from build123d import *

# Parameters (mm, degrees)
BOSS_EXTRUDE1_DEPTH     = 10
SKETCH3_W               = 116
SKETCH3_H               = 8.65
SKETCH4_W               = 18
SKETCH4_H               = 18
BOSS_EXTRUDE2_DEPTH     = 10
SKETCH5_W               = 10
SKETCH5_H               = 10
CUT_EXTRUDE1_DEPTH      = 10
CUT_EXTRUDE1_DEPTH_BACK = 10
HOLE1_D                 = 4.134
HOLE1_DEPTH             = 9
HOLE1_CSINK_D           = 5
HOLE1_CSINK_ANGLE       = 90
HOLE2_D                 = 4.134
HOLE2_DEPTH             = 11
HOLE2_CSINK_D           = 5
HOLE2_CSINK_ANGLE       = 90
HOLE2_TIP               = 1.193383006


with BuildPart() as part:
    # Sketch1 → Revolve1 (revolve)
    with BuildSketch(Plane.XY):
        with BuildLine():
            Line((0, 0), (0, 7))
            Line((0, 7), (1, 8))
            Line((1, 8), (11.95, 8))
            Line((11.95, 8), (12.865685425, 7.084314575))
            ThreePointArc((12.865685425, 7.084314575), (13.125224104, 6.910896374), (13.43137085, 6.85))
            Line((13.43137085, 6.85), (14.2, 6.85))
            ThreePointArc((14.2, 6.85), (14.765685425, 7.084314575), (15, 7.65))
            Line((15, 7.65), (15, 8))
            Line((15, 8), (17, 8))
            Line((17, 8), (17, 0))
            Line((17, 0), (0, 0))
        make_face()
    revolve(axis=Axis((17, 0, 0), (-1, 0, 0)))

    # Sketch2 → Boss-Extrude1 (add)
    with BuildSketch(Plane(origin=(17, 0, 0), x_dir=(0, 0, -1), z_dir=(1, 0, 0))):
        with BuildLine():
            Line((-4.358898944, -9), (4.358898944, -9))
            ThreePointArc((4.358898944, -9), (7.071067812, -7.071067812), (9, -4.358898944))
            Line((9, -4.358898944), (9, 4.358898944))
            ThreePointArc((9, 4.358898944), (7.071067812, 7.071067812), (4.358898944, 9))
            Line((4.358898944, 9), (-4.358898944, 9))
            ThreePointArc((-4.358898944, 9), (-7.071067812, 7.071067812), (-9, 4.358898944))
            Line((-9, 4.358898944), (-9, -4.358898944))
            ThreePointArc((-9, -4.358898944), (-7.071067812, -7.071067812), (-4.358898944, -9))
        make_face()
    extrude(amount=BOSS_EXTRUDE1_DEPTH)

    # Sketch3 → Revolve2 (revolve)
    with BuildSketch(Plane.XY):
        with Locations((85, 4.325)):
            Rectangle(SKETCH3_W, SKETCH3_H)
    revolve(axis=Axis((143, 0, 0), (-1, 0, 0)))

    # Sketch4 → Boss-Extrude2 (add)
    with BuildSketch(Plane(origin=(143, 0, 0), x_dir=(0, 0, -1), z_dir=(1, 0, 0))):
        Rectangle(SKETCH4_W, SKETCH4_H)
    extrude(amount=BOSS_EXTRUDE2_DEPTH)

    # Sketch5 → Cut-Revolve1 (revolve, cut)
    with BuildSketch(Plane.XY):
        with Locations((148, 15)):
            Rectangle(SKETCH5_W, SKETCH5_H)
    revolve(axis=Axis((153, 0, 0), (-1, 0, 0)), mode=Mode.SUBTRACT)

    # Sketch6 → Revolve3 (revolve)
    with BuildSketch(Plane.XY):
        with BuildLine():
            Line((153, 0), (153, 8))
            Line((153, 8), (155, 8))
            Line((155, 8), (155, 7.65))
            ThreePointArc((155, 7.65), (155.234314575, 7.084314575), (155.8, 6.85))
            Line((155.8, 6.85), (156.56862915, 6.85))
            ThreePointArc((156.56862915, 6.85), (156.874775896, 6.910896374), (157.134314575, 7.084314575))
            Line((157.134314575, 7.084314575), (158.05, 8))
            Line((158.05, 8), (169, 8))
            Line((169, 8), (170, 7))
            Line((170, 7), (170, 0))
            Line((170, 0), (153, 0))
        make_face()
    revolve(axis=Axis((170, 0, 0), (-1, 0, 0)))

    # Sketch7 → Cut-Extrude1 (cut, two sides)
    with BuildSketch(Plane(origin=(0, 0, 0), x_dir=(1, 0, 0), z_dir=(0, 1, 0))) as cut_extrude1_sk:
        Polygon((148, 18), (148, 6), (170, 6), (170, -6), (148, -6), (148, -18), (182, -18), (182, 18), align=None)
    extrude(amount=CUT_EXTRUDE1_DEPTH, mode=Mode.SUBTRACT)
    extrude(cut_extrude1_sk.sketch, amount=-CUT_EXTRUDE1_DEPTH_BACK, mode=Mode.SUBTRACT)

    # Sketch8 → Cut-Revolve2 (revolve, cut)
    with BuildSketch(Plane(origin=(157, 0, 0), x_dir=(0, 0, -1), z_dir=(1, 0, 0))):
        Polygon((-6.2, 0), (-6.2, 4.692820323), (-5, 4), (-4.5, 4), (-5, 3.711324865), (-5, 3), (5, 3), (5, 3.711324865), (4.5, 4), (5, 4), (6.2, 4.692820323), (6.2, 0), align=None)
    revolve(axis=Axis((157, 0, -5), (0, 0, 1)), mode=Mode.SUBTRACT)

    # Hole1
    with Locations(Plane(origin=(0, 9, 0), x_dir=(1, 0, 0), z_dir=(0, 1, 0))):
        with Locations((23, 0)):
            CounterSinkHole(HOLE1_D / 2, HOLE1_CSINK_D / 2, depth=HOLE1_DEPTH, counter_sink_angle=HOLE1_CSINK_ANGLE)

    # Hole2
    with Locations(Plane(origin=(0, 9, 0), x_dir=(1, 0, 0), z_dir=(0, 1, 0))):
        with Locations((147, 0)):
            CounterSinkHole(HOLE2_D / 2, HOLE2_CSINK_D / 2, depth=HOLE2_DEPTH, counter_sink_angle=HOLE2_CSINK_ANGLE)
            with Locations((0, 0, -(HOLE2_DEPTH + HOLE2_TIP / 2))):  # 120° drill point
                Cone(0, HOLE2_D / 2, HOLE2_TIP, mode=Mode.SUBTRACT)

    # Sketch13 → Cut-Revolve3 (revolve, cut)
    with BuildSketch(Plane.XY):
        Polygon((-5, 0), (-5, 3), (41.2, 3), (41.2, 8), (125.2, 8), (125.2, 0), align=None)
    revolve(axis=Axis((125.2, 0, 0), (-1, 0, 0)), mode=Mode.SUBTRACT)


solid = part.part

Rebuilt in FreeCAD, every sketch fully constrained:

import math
import FreeCAD as App
import Part
import Sketcher
from FreeCAD import Vector
Q = App.Units.Quantity

doc = App.newDocument("Part")
body = doc.addObject("PartDesign::Body", "Body")

# Sketch on XY plane
sketch1 = body.newObject("Sketcher::SketchObject", "Sketch")
sketch1.AttachmentSupport = (doc.getObject("XY_Plane"), [""])
sketch1.MapMode = "FlatFace"
sketch1.addGeometry([
    Part.LineSegment(Vector(0, 7, 0), Vector(0, 0, 0)),  # 0
    Part.LineSegment(Vector(0, 0, 0), Vector(17, 0, 0)),  # 1
    Part.LineSegment(Vector(17, 0, 0), Vector(17, 8, 0)),  # 2
    Part.LineSegment(Vector(17, 8, 0), Vector(15, 8, 0)),  # 3
    Part.LineSegment(Vector(15, 8, 0), Vector(15, 7.65, 0)),  # 4
    Part.ArcOfCircle(Part.Circle(Vector(14.2, 7.65, 0), Vector(0, 0, 1), 0.8), math.radians(-90), math.radians(0)),  # 5
    Part.LineSegment(Vector(14.2, 6.85, 0), Vector(13.43, 6.85, 0)),  # 6
    Part.ArcOfCircle(Part.Circle(Vector(13.43, 7.65, 0), Vector(0, 0, 1), 0.8), math.radians(-135), math.radians(-90)),  # 7
    Part.LineSegment(Vector(12.87, 7.08, 0), Vector(11.95, 8, 0)),  # 8
    Part.LineSegment(Vector(11.95, 8, 0), Vector(1, 8, 0)),  # 9
    Part.LineSegment(Vector(1, 8, 0), Vector(0, 7, 0)),  # 10
], False)
sketch1.addConstraint([
    Sketcher.Constraint("Coincident", 0, 2, 1, 1),
    Sketcher.Constraint("Coincident", 1, 2, 2, 1),
    Sketcher.Constraint("Coincident", 2, 2, 3, 1),
    Sketcher.Constraint("Coincident", 3, 2, 4, 1),
    Sketcher.Constraint("Tangent", 4, 2, 5, 2),
    Sketcher.Constraint("Tangent", 5, 1, 6, 1),
    Sketcher.Constraint("Tangent", 6, 2, 7, 2),
    Sketcher.Constraint("Tangent", 7, 1, 8, 1),
    Sketcher.Constraint("Coincident", 8, 2, 9, 1),
    Sketcher.Constraint("Coincident", 9, 2, 10, 1),
    Sketcher.Constraint("Coincident", 10, 2, 0, 1),
    Sketcher.Constraint("Vertical", 0),
    Sketcher.Constraint("Horizontal", 1),
    Sketcher.Constraint("Vertical", 2),
    Sketcher.Constraint("Horizontal", 3),
    Sketcher.Constraint("Vertical", 4),
    Sketcher.Constraint("Horizontal", 6),
    Sketcher.Constraint("Horizontal", 9),
    Sketcher.Constraint("Coincident", 0, 2, -1, 1),
    Sketcher.Constraint("Equal", 5, 7),
    Sketcher.Constraint("Perpendicular", 8, 10),
    Sketcher.Constraint("Horizontal", 3, 2, 8, 2),
    Sketcher.Constraint("Radius", 5, 0.8),
    Sketcher.Constraint("DistanceX", 1, 1, 1, 2, 17.0),
    Sketcher.Constraint("DistanceX", 3, 2, 3, 1, 2.0),
    Sketcher.Constraint("DistanceY", 0, 2, 0, 1, 7.0),
    Sketcher.Constraint("DistanceY", 2, 1, 2, 2, 8.0),
    Sketcher.Constraint("Angle", 8, Q("135 deg")),
    Sketcher.Constraint("DistanceX", 9, 2, 9, 1, 10.95),
    Sketcher.Constraint("DistanceY", 4, 2, 4, 1, 0.35),
])
revolution = body.newObject("PartDesign::Revolution", "Revolution")
revolution.Profile = sketch1
revolution.ReferenceAxis = (sketch1, ["H_Axis"])
revolution.Angle = 360

# Sketch on YZ plane
sketch2 = body.newObject("Sketcher::SketchObject", "Sketch001")
sketch2.AttachmentSupport = (doc.getObject("YZ_Plane"), [""])
sketch2.MapMode = "FlatFace"
sketch2.AttachmentOffset = App.Placement(Vector(0, 0, 17), App.Rotation())
sketch2.addGeometry([
    Part.LineSegment(Vector(-9, 4, 0), Vector(-9, -4, 0)),  # 0
    Part.ArcOfCircle(Part.Circle(Vector(0, 0, 0), Vector(0, 0, 1), 10), math.radians(-154), math.radians(-116)),  # 1
    Part.LineSegment(Vector(-4, -9, 0), Vector(4, -9, 0)),  # 2
    Part.ArcOfCircle(Part.Circle(Vector(0, 0, 0), Vector(0, 0, 1), 10), math.radians(-64), math.radians(-26)),  # 3
    Part.LineSegment(Vector(9, -4, 0), Vector(9, 4, 0)),  # 4
    Part.ArcOfCircle(Part.Circle(Vector(0, 0, 0), Vector(0, 0, 1), 10), math.radians(26), math.radians(64)),  # 5
    Part.LineSegment(Vector(4, 9, 0), Vector(-4, 9, 0)),  # 6
    Part.ArcOfCircle(Part.Circle(Vector(0, 0, 0), Vector(0, 0, 1), 10), math.radians(116), math.radians(154)),  # 7
], False)
sketch2.addConstraint([
    Sketcher.Constraint("Coincident", 0, 2, 1, 1),
    Sketcher.Constraint("Coincident", 1, 2, 2, 1),
    Sketcher.Constraint("Coincident", 2, 2, 3, 1),
    Sketcher.Constraint("Coincident", 3, 2, 4, 1),
    Sketcher.Constraint("Coincident", 4, 2, 5, 1),
    Sketcher.Constraint("Coincident", 5, 2, 6, 1),
    Sketcher.Constraint("Coincident", 6, 2, 7, 1),
    Sketcher.Constraint("Coincident", 7, 2, 0, 1),
    Sketcher.Constraint("Vertical", 0),
    Sketcher.Constraint("Horizontal", 2),
    Sketcher.Constraint("Vertical", 4),
    Sketcher.Constraint("Horizontal", 6),
    Sketcher.Constraint("Coincident", 1, 3, -1, 1),
    Sketcher.Constraint("Coincident", 3, 3, -1, 1),
    Sketcher.Constraint("Coincident", 5, 3, -1, 1),
    Sketcher.Constraint("Coincident", 7, 3, -1, 1),
    Sketcher.Constraint("Equal", 1, 3),
    Sketcher.Constraint("Equal", 3, 5),
    Sketcher.Constraint("Equal", 5, 7),
    Sketcher.Constraint("Horizontal", 0, 2, 3, 2),
    Sketcher.Constraint("Vertical", 2, 2, 5, 2),
    Sketcher.Constraint("Equal", 6, 0),
    Sketcher.Constraint("Radius", 1, 10.0),
    Sketcher.Constraint("DistanceX", 0, 2, -1, 1, 9.0),
])
pad1 = body.newObject("PartDesign::Pad", "Pad")
pad1.Profile = sketch2
pad1.Length = 10

# Sketch on XY plane
sketch3 = body.newObject("Sketcher::SketchObject", "Sketch002")
sketch3.AttachmentSupport = (doc.getObject("XY_Plane"), [""])
sketch3.MapMode = "FlatFace"
sketch3.addGeometry([
    Part.LineSegment(Vector(27, 9, 0), Vector(27, 0, 0)),
    Part.LineSegment(Vector(27, 0, 0), Vector(143, 0, 0)),
    Part.LineSegment(Vector(143, 0, 0), Vector(143, 9, 0)),
    Part.LineSegment(Vector(143, 9, 0), Vector(27, 9, 0)),
], False)
sketch3.addConstraint([
    Sketcher.Constraint("Coincident", 0, 2, 1, 1),
    Sketcher.Constraint("Coincident", 1, 2, 2, 1),
    Sketcher.Constraint("Coincident", 2, 2, 3, 1),
    Sketcher.Constraint("Coincident", 3, 2, 0, 1),
    Sketcher.Constraint("Vertical", 0),
    Sketcher.Constraint("Horizontal", 1),
    Sketcher.Constraint("Vertical", 2),
    Sketcher.Constraint("Horizontal", 3),
    Sketcher.Constraint("PointOnObject", 0, 2, -1),
    Sketcher.Constraint("DistanceX", 1, 1, 1, 2, 116.0),
    Sketcher.Constraint("DistanceX", -1, 1, 0, 2, 27.0),
    Sketcher.Constraint("DistanceY", 0, 2, 0, 1, 8.65),
])
revolution2 = body.newObject("PartDesign::Revolution", "Revolution001")
revolution2.Profile = sketch3
revolution2.ReferenceAxis = (sketch3, ["H_Axis"])
revolution2.Angle = 360

# Sketch on YZ plane
sketch4 = body.newObject("Sketcher::SketchObject", "Sketch003")
sketch4.AttachmentSupport = (doc.getObject("YZ_Plane"), [""])
sketch4.MapMode = "FlatFace"
sketch4.AttachmentOffset = App.Placement(Vector(0, 0, 143), App.Rotation())
sketch4.addGeometry([
    Part.LineSegment(Vector(9, 9, 0), Vector(-9, 9, 0)),
    Part.LineSegment(Vector(-9, 9, 0), Vector(-9, -9, 0)),
    Part.LineSegment(Vector(-9, -9, 0), Vector(9, -9, 0)),
    Part.LineSegment(Vector(9, -9, 0), Vector(9, 9, 0)),
], False)
sketch4.addConstraint([
    Sketcher.Constraint("Coincident", 0, 2, 1, 1),
    Sketcher.Constraint("Coincident", 1, 2, 2, 1),
    Sketcher.Constraint("Coincident", 2, 2, 3, 1),
    Sketcher.Constraint("Coincident", 3, 2, 0, 1),
    Sketcher.Constraint("Horizontal", 0),
    Sketcher.Constraint("Vertical", 1),
    Sketcher.Constraint("Horizontal", 2),
    Sketcher.Constraint("Vertical", 3),
    Sketcher.Constraint("Symmetric", 0, 2, 2, 2, -1, 1),
    Sketcher.Constraint("Equal", 2, 1),
    Sketcher.Constraint("DistanceX", 0, 2, 0, 1, 18.0),
])
pad2 = body.newObject("PartDesign::Pad", "Pad001")
pad2.Profile = sketch4
pad2.Length = 10

# Sketch on XY plane
sketch5 = body.newObject("Sketcher::SketchObject", "Sketch004")
sketch5.AttachmentSupport = (doc.getObject("XY_Plane"), [""])
sketch5.MapMode = "FlatFace"
sketch5.addGeometry([
    Part.LineSegment(Vector(143, 20, 0), Vector(143, 10, 0)),
    Part.LineSegment(Vector(143, 10, 0), Vector(153, 10, 0)),
    Part.LineSegment(Vector(153, 10, 0), Vector(153, 20, 0)),
    Part.LineSegment(Vector(153, 20, 0), Vector(143, 20, 0)),
], False)
sketch5.addConstraint([
    Sketcher.Constraint("Coincident", 0, 2, 1, 1),
    Sketcher.Constraint("Coincident", 1, 2, 2, 1),
    Sketcher.Constraint("Coincident", 2, 2, 3, 1),
    Sketcher.Constraint("Coincident", 3, 2, 0, 1),
    Sketcher.Constraint("Vertical", 0),
    Sketcher.Constraint("Horizontal", 1),
    Sketcher.Constraint("Vertical", 2),
    Sketcher.Constraint("Horizontal", 3),
    Sketcher.Constraint("Equal", 3, 0),
    Sketcher.Constraint("DistanceX", 1, 1, 1, 2, 10.0),
    Sketcher.Constraint("DistanceX", -1, 1, 0, 2, 143.0),
    Sketcher.Constraint("DistanceY", -1, 1, 0, 2, 10.0),
])
groove = body.newObject("PartDesign::Groove", "Groove")
groove.Profile = sketch5
groove.ReferenceAxis = (sketch5, ["H_Axis"])
groove.Angle = 360

# Sketch on XY plane
sketch6 = body.newObject("Sketcher::SketchObject", "Sketch005")
sketch6.AttachmentSupport = (doc.getObject("XY_Plane"), [""])
sketch6.MapMode = "FlatFace"
sketch6.addGeometry([
    Part.LineSegment(Vector(153, 8, 0), Vector(153, 0, 0)),  # 0
    Part.LineSegment(Vector(153, 0, 0), Vector(170, 0, 0)),  # 1
    Part.LineSegment(Vector(170, 0, 0), Vector(170, 7, 0)),  # 2
    Part.LineSegment(Vector(170, 7, 0), Vector(169, 8, 0)),  # 3
    Part.LineSegment(Vector(169, 8, 0), Vector(158.05, 8, 0)),  # 4
    Part.LineSegment(Vector(158.05, 8, 0), Vector(157.13, 7.08, 0)),  # 5
    Part.ArcOfCircle(Part.Circle(Vector(156.57, 7.65, 0), Vector(0, 0, 1), 0.8), math.radians(-90), math.radians(-45)),  # 6
    Part.LineSegment(Vector(156.57, 6.85, 0), Vector(155.8, 6.85, 0)),  # 7
    Part.ArcOfCircle(Part.Circle(Vector(155.8, 7.65, 0), Vector(0, 0, 1), 0.8), math.radians(180), math.radians(270)),  # 8
    Part.LineSegment(Vector(155, 7.65, 0), Vector(155, 8, 0)),  # 9
    Part.LineSegment(Vector(155, 8, 0), Vector(153, 8, 0)),  # 10
], False)
sketch6.addConstraint([
    Sketcher.Constraint("Coincident", 0, 2, 1, 1),
    Sketcher.Constraint("Coincident", 1, 2, 2, 1),
    Sketcher.Constraint("Coincident", 2, 2, 3, 1),
    Sketcher.Constraint("Coincident", 3, 2, 4, 1),
    Sketcher.Constraint("Coincident", 4, 2, 5, 1),
    Sketcher.Constraint("Tangent", 5, 2, 6, 2),
    Sketcher.Constraint("Tangent", 6, 1, 7, 1),
    Sketcher.Constraint("Tangent", 7, 2, 8, 2),
    Sketcher.Constraint("Tangent", 8, 1, 9, 1),
    Sketcher.Constraint("Coincident", 9, 2, 10, 1),
    Sketcher.Constraint("Coincident", 10, 2, 0, 1),
    Sketcher.Constraint("Vertical", 0),
    Sketcher.Constraint("Horizontal", 1),
    Sketcher.Constraint("Vertical", 2),
    Sketcher.Constraint("Horizontal", 4),
    Sketcher.Constraint("Horizontal", 7),
    Sketcher.Constraint("Vertical", 9),
    Sketcher.Constraint("Horizontal", 10),
    Sketcher.Constraint("Equal", 6, 8),
    Sketcher.Constraint("PointOnObject", 0, 2, -1),
    Sketcher.Constraint("Perpendicular", 3, 5),
    Sketcher.Constraint("Horizontal", 4, 2, 9, 2),
    Sketcher.Constraint("Radius", 6, 0.8),
    Sketcher.Constraint("DistanceX", 1, 1, 1, 2, 17.0),
    Sketcher.Constraint("DistanceX", 10, 2, 10, 1, 2.0),
    Sketcher.Constraint("DistanceY", 0, 2, 0, 1, 8.0),
    Sketcher.Constraint("DistanceY", 2, 1, 2, 2, 7.0),
    Sketcher.Constraint("Angle", 3, Q("135 deg")),
    Sketcher.Constraint("DistanceX", -1, 1, 0, 2, 153.0),
    Sketcher.Constraint("DistanceX", 4, 2, 4, 1, 10.95),
    Sketcher.Constraint("DistanceY", 9, 1, 9, 2, 0.35),
])
revolution3 = body.newObject("PartDesign::Revolution", "Revolution002")
revolution3.Profile = sketch6
revolution3.ReferenceAxis = (sketch6, ["H_Axis"])
revolution3.Angle = 360

# Sketch on XZ plane
sketch7 = body.newObject("Sketcher::SketchObject", "Sketch006")
sketch7.AttachmentSupport = (doc.getObject("XZ_Plane"), [""])
sketch7.MapMode = "FlatFace"
sketch7.addGeometry([
    Part.LineSegment(Vector(148, -18, 0), Vector(148, -6, 0)),  # 0
    Part.LineSegment(Vector(148, -6, 0), Vector(170, -6, 0)),  # 1
    Part.LineSegment(Vector(170, -6, 0), Vector(170, 6, 0)),  # 2
    Part.LineSegment(Vector(170, 6, 0), Vector(148, 6, 0)),  # 3
    Part.LineSegment(Vector(148, 6, 0), Vector(148, 18, 0)),  # 4
    Part.LineSegment(Vector(148, 18, 0), Vector(182, 18, 0)),  # 5
    Part.LineSegment(Vector(182, 18, 0), Vector(182, -18, 0)),  # 6
    Part.LineSegment(Vector(182, -18, 0), Vector(148, -18, 0)),  # 7
], False)
sketch7.addConstraint([
    Sketcher.Constraint("Coincident", 0, 2, 1, 1),
    Sketcher.Constraint("Coincident", 1, 2, 2, 1),
    Sketcher.Constraint("Coincident", 2, 2, 3, 1),
    Sketcher.Constraint("Coincident", 3, 2, 4, 1),
    Sketcher.Constraint("Coincident", 4, 2, 5, 1),
    Sketcher.Constraint("Coincident", 5, 2, 6, 1),
    Sketcher.Constraint("Coincident", 6, 2, 7, 1),
    Sketcher.Constraint("Coincident", 7, 2, 0, 1),
    Sketcher.Constraint("Vertical", 0),
    Sketcher.Constraint("Horizontal", 1),
    Sketcher.Constraint("Vertical", 2),
    Sketcher.Constraint("Horizontal", 3),
    Sketcher.Constraint("Vertical", 4),
    Sketcher.Constraint("Horizontal", 5),
    Sketcher.Constraint("Vertical", 6),
    Sketcher.Constraint("Horizontal", 7),
    Sketcher.Constraint("Symmetric", 0, 2, 3, 2, -1),
    Sketcher.Constraint("Equal", 0, 2),
    Sketcher.Constraint("Equal", 2, 4),
    Sketcher.Constraint("DistanceX", 1, 1, 1, 2, 22.0),
    Sketcher.Constraint("DistanceX", 5, 1, 5, 2, 34.0),
    Sketcher.Constraint("DistanceY", 0, 1, 0, 2, 12.0),
    Sketcher.Constraint("DistanceX", -1, 1, 0, 2, 148.0),
])
pocket1 = body.newObject("PartDesign::Pocket", "Pocket")
pocket1.Profile = sketch7
pocket1.Type = "ThroughAll"
pocket1.Midplane = True

# Sketch on YZ plane
sketch8 = body.newObject("Sketcher::SketchObject", "Sketch007")
sketch8.AttachmentSupport = (doc.getObject("YZ_Plane"), [""])
sketch8.MapMode = "FlatFace"
sketch8.AttachmentOffset = App.Placement(Vector(0, 0, 157), App.Rotation())
sketch8.addGeometry([
    Part.LineSegment(Vector(4.7, 6.2, 0), Vector(0, 6.2, 0)),  # 0
    Part.LineSegment(Vector(0, 6.2, 0), Vector(0, -6.2, 0)),  # 1
    Part.LineSegment(Vector(0, -6.2, 0), Vector(4.7, -6.2, 0)),  # 2
    Part.LineSegment(Vector(4.7, -6.2, 0), Vector(4, -5, 0)),  # 3
    Part.LineSegment(Vector(4, -5, 0), Vector(4, -4.5, 0)),  # 4
    Part.LineSegment(Vector(4, -4.5, 0), Vector(3.7, -5, 0)),  # 5
    Part.LineSegment(Vector(3.7, -5, 0), Vector(3, -5, 0)),  # 6
    Part.LineSegment(Vector(3, -5, 0), Vector(3, 5, 0)),  # 7
    Part.LineSegment(Vector(3, 5, 0), Vector(3.7, 5, 0)),  # 8
    Part.LineSegment(Vector(3.7, 5, 0), Vector(4, 4.5, 0)),  # 9
    Part.LineSegment(Vector(4, 4.5, 0), Vector(4, 5, 0)),  # 10
    Part.LineSegment(Vector(4, 5, 0), Vector(4.7, 6.2, 0)),  # 11
], False)
sketch8.addConstraint([
    Sketcher.Constraint("Coincident", 0, 2, 1, 1),
    Sketcher.Constraint("Coincident", 1, 2, 2, 1),
    Sketcher.Constraint("Coincident", 2, 2, 3, 1),
    Sketcher.Constraint("Coincident", 3, 2, 4, 1),
    Sketcher.Constraint("Coincident", 4, 2, 5, 1),
    Sketcher.Constraint("Coincident", 5, 2, 6, 1),
    Sketcher.Constraint("Coincident", 6, 2, 7, 1),
    Sketcher.Constraint("Coincident", 7, 2, 8, 1),
    Sketcher.Constraint("Coincident", 8, 2, 9, 1),
    Sketcher.Constraint("Coincident", 9, 2, 10, 1),
    Sketcher.Constraint("Coincident", 10, 2, 11, 1),
    Sketcher.Constraint("Coincident", 11, 2, 0, 1),
    Sketcher.Constraint("Horizontal", 0),
    Sketcher.Constraint("Vertical", 1),
    Sketcher.Constraint("Horizontal", 2),
    Sketcher.Constraint("Vertical", 4),
    Sketcher.Constraint("Horizontal", 6),
    Sketcher.Constraint("Vertical", 7),
    Sketcher.Constraint("Horizontal", 8),
    Sketcher.Constraint("Vertical", 10),
    Sketcher.Constraint("Symmetric", 0, 2, 1, 2, -1, 1),
    Sketcher.Constraint("Symmetric", 5, 2, 8, 2, -1),
    Sketcher.Constraint("Symmetric", 4, 2, 9, 2, -1),
    Sketcher.Constraint("Parallel", 3, 9),
    Sketcher.Constraint("Parallel", 5, 11),
    Sketcher.Constraint("Horizontal", 3, 2, 5, 2),
    Sketcher.Constraint("Horizontal", 8, 2, 10, 2),
    Sketcher.Constraint("DistanceY", 7, 1, 7, 2, 10.0),
    Sketcher.Constraint("Angle", 3, Q("120 deg")),
    Sketcher.Constraint("DistanceY", 1, 2, 1, 1, 12.4),
    Sketcher.Constraint("DistanceY", 4, 1, 4, 2, 0.5),
    Sketcher.Constraint("DistanceX", -1, 1, 3, 2, 4.0),
    Sketcher.Constraint("DistanceX", -1, 1, 6, 2, 3.0),
])
groove2 = body.newObject("PartDesign::Groove", "Groove001")
groove2.Profile = sketch8
groove2.ReferenceAxis = (sketch8, ["V_Axis"])
groove2.Angle = 360

# Sketch on XZ plane
sketch9 = body.newObject("Sketcher::SketchObject", "Sketch008")
sketch9.AttachmentSupport = (doc.getObject("XZ_Plane"), [""])
sketch9.MapMode = "FlatFace"
sketch9.AttachmentOffset = App.Placement(Vector(0, 0, -9), App.Rotation())
sketch9.addGeometry(Part.Circle(Vector(23, 0, 0), Vector(0, 0, 1), 2.1), False)
sketch9.addConstraint([
    Sketcher.Constraint("PointOnObject", 0, 3, -1),
    Sketcher.Constraint("Diameter", 0, 4.134),
    Sketcher.Constraint("DistanceX", -1, 1, 0, 3, 23.0),
])
doc.recompute()
hole = body.newObject("PartDesign::Hole", "Hole")
hole.Profile = sketch9
hole.ThreadType = "None"
hole.Diameter = 4.134
hole.DepthType = "Dimension"
hole.Depth = 9
hole.DrillPoint = "Flat"
hole.HoleCutType = "Countersink"
hole.HoleCutDiameter = 5
hole.HoleCutCountersinkAngle = 90
hole.Reversed = True

# Sketch on XZ plane
sketch10 = body.newObject("Sketcher::SketchObject", "Sketch009")
sketch10.AttachmentSupport = (doc.getObject("XZ_Plane"), [""])
sketch10.MapMode = "FlatFace"
sketch10.AttachmentOffset = App.Placement(Vector(0, 0, -9), App.Rotation())
sketch10.addGeometry(Part.Circle(Vector(147, 0, 0), Vector(0, 0, 1), 2.1), False)
sketch10.addConstraint([
    Sketcher.Constraint("PointOnObject", 0, 3, -1),
    Sketcher.Constraint("Diameter", 0, 4.134),
    Sketcher.Constraint("DistanceX", -1, 1, 0, 3, 147.0),
])
doc.recompute()
hole2 = body.newObject("PartDesign::Hole", "Hole001")
hole2.Profile = sketch10
hole2.ThreadType = "None"
hole2.Diameter = 4.134
hole2.DepthType = "Dimension"
hole2.Depth = 11
hole2.DrillPoint = "Angled"
hole2.DrillPointAngle = 120
hole2.HoleCutType = "Countersink"
hole2.HoleCutDiameter = 5
hole2.HoleCutCountersinkAngle = 90
hole2.Reversed = True

# Sketch on XY plane
sketch11 = body.newObject("Sketcher::SketchObject", "Sketch010")
sketch11.AttachmentSupport = (doc.getObject("XY_Plane"), [""])
sketch11.MapMode = "FlatFace"
sketch11.addGeometry([
    Part.LineSegment(Vector(-5, 3, 0), Vector(-5, 0, 0)),  # 0
    Part.LineSegment(Vector(-5, 0, 0), Vector(125.2, 0, 0)),  # 1
    Part.LineSegment(Vector(125.2, 0, 0), Vector(125.2, 8, 0)),  # 2
    Part.LineSegment(Vector(125.2, 8, 0), Vector(41.2, 8, 0)),  # 3
    Part.LineSegment(Vector(41.2, 8, 0), Vector(41.2, 3, 0)),  # 4
    Part.LineSegment(Vector(41.2, 3, 0), Vector(-5, 3, 0)),  # 5
], False)
sketch11.addConstraint([
    Sketcher.Constraint("Coincident", 0, 2, 1, 1),
    Sketcher.Constraint("Coincident", 1, 2, 2, 1),
    Sketcher.Constraint("Coincident", 2, 2, 3, 1),
    Sketcher.Constraint("Coincident", 3, 2, 4, 1),
    Sketcher.Constraint("Coincident", 4, 2, 5, 1),
    Sketcher.Constraint("Coincident", 5, 2, 0, 1),
    Sketcher.Constraint("Vertical", 0),
    Sketcher.Constraint("Horizontal", 1),
    Sketcher.Constraint("Vertical", 2),
    Sketcher.Constraint("Horizontal", 3),
    Sketcher.Constraint("Vertical", 4),
    Sketcher.Constraint("Horizontal", 5),
    Sketcher.Constraint("PointOnObject", 0, 2, -1),
    Sketcher.Constraint("DistanceX", 3, 2, 3, 1, 84.0),
    Sketcher.Constraint("DistanceY", 0, 2, 0, 1, 3.0),
    Sketcher.Constraint("DistanceY", 2, 1, 2, 2, 8.0),
    Sketcher.Constraint("DistanceX", 1, 1, 1, 2, 130.2),
    Sketcher.Constraint("DistanceX", 0, 2, -1, 1, 5.0),
])
groove3 = body.newObject("PartDesign::Groove", "Groove002")
groove3.Profile = sketch11
groove3.ReferenceAxis = (sketch11, ["H_Axis"])
groove3.Angle = 360

doc.recompute()
